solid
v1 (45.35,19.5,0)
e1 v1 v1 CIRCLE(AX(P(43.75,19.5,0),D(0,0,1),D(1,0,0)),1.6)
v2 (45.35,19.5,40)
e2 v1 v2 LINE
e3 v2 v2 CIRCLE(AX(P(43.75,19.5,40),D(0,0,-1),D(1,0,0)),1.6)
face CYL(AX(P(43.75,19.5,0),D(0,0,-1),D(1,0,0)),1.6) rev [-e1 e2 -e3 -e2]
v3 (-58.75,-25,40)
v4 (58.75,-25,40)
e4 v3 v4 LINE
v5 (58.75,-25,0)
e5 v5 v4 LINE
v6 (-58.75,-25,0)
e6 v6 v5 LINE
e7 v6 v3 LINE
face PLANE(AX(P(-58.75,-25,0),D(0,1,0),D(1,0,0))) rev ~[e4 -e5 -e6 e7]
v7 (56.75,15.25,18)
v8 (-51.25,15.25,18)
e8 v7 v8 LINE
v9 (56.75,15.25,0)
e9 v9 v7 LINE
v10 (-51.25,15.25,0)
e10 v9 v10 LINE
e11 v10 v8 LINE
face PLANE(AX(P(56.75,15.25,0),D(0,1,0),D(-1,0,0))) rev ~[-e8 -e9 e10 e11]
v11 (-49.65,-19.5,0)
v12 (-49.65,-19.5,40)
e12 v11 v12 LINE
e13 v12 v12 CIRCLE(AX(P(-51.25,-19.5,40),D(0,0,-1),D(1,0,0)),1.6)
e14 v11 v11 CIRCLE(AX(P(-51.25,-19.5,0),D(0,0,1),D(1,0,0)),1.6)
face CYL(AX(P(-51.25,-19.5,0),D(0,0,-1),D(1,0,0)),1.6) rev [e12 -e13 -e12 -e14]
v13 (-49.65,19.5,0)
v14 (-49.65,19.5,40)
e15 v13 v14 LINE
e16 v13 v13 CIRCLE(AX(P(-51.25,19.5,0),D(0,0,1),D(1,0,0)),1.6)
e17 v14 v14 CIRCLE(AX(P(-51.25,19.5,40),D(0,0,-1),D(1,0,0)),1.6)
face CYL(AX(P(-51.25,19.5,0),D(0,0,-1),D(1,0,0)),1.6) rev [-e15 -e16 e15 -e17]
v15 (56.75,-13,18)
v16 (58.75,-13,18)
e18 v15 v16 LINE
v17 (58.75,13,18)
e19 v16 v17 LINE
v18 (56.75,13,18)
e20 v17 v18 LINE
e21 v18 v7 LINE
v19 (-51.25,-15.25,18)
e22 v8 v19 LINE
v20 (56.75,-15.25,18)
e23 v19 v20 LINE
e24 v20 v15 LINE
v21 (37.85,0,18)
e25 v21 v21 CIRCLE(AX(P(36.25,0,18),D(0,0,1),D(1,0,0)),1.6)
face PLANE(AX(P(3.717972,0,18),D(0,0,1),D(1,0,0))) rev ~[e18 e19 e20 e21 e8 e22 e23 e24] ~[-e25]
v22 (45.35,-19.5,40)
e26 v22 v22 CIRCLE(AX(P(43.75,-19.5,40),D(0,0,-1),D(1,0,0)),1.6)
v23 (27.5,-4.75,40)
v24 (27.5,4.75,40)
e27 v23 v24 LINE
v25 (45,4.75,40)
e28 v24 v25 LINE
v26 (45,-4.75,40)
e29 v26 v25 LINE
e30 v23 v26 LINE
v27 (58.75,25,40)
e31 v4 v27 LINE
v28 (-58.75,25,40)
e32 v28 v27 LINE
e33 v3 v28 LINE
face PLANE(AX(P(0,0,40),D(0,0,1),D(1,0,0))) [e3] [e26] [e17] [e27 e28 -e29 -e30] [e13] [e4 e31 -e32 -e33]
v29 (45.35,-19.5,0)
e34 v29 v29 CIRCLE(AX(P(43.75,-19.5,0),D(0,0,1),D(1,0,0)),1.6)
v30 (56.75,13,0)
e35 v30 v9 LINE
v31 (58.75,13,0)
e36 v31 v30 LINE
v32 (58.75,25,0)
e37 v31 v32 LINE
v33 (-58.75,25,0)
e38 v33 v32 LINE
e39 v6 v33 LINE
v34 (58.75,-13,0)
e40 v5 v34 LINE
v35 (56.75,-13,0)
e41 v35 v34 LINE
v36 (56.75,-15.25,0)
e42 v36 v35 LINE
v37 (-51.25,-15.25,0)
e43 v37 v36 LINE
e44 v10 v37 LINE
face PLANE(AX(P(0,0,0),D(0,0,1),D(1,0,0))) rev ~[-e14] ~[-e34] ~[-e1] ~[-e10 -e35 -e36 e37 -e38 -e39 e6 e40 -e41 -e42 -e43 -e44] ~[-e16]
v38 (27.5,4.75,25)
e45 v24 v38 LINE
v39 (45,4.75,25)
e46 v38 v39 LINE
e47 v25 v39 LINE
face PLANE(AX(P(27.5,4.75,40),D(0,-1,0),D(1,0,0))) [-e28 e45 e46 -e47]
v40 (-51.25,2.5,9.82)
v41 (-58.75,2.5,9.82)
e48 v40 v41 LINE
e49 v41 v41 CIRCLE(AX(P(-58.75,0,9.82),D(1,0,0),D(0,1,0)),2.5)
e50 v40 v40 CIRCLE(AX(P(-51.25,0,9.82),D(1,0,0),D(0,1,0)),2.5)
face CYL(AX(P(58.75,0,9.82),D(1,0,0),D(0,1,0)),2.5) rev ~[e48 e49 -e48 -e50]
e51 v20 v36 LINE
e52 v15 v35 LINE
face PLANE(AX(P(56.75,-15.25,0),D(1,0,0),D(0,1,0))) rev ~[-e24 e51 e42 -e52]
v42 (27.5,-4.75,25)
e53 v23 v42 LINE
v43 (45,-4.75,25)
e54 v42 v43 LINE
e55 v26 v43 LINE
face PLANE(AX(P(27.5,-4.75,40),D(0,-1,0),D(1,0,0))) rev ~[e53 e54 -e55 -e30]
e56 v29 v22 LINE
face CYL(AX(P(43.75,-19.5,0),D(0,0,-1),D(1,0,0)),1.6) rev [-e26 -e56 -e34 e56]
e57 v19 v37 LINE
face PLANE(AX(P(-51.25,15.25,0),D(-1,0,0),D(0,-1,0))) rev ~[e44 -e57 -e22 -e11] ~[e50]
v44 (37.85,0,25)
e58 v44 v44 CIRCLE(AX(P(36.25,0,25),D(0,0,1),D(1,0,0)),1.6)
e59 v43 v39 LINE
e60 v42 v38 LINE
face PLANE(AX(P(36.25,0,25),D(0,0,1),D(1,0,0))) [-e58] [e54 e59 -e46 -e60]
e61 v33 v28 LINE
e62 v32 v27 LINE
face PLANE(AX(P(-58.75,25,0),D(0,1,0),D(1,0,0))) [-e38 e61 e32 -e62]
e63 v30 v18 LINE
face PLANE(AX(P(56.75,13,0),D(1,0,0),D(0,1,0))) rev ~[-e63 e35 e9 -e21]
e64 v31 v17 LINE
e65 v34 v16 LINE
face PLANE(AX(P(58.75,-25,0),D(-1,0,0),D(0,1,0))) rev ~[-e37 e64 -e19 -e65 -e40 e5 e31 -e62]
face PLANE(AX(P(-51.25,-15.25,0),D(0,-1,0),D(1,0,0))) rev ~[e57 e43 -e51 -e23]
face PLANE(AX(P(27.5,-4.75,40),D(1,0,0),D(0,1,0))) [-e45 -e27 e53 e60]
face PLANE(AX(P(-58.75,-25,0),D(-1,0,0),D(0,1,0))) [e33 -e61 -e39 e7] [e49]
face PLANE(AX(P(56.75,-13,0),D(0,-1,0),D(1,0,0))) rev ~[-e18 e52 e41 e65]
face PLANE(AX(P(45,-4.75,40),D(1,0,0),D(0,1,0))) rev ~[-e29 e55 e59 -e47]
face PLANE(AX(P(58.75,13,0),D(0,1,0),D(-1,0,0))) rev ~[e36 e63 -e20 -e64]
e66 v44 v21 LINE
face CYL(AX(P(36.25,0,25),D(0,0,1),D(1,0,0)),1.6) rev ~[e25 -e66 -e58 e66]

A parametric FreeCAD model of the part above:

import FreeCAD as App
import Part
import Sketcher

V = App.Vector
Q = App.Units.Quantity

doc = App.newDocument("Part")
body = doc.addObject("PartDesign::Body", "Body")

# Sketch on XY plane
sketch1 = doc.addObject("Sketcher::SketchObject", "Sketch")
body.addObject(sketch1)
sketch1.AttachmentSupport = (doc.XY_Plane, [""])
sketch1.MapMode = "FlatFace"
sketch1.addGeometry([
    Part.LineSegment(V(-59, 25, 0), V(-59, -25, 0)),
    Part.LineSegment(V(-59, -25, 0), V(59, -25, 0)),
    Part.LineSegment(V(59, -25, 0), V(59, 25, 0)),
    Part.LineSegment(V(59, 25, 0), V(-59, 25, 0)),
], False)
sketch1.addConstraint([
    Sketcher.Constraint("Coincident", 0, 2, 1, 1),
    Sketcher.Constraint("Coincident", 1, 2, 2, 1),
    Sketcher.Constraint("Coincident", 2, 2, 3, 1),
    Sketcher.Constraint("Coincident", 3, 2, 0, 1),
    Sketcher.Constraint("Vertical", 0),
    Sketcher.Constraint("Horizontal", 1),
    Sketcher.Constraint("Vertical", 2),
    Sketcher.Constraint("Horizontal", 3),
    Sketcher.Constraint("Symmetric", 0, 2, 2, 2, -1, 1),
    Sketcher.Constraint("DistanceY", 0, 2, 0, 1, Q("50 mm")),
    Sketcher.Constraint("DistanceX", 1, 1, 1, 2, Q("117.5 mm")),
])
pad1 = doc.addObject("PartDesign::Pad", "Pad")
body.addObject(pad1)
pad1.Profile = sketch1
pad1.Length = 40

# Sketch on XY plane
sketch2 = doc.addObject("Sketcher::SketchObject", "Sketch001")
body.addObject(sketch2)
sketch2.AttachmentSupport = (doc.XY_Plane, [""])
sketch2.MapMode = "FlatFace"
sketch2.addGeometry([
    Part.LineSegment(V(56.8, -13, 0), V(58.8, -13, 0)),  # 0
    Part.LineSegment(V(58.8, -13, 0), V(58.8, 13, 0)),  # 1
    Part.LineSegment(V(58.8, 13, 0), V(56.8, 13, 0)),  # 2
    Part.LineSegment(V(56.8, 13, 0), V(56.8, 15.2, 0)),  # 3
    Part.LineSegment(V(56.8, 15.2, 0), V(-51.2, 15.2, 0)),  # 4
    Part.LineSegment(V(-51.2, 15.2, 0), V(-51.2, -15.2, 0)),  # 5
    Part.LineSegment(V(-51.2, -15.2, 0), V(56.8, -15.2, 0)),  # 6
    Part.LineSegment(V(56.8, -15.2, 0), V(56.8, -13, 0)),  # 7
], False)
sketch2.addConstraint([
    Sketcher.Constraint("Coincident", 0, 2, 1, 1),
    Sketcher.Constraint("Coincident", 1, 2, 2, 1),
    Sketcher.Constraint("Coincident", 2, 2, 3, 1),
    Sketcher.Constraint("Coincident", 3, 2, 4, 1),
    Sketcher.Constraint("Coincident", 4, 2, 5, 1),
    Sketcher.Constraint("Coincident", 5, 2, 6, 1),
    Sketcher.Constraint("Coincident", 6, 2, 7, 1),
    Sketcher.Constraint("Coincident", 7, 2, 0, 1),
    Sketcher.Constraint("Horizontal", 0),
    Sketcher.Constraint("Vertical", 1),
    Sketcher.Constraint("Horizontal", 2),
    Sketcher.Constraint("Vertical", 3),
    Sketcher.Constraint("Horizontal", 4),
    Sketcher.Constraint("Vertical", 5),
    Sketcher.Constraint("Horizontal", 6),
    Sketcher.Constraint("Vertical", 7),
    Sketcher.Constraint("Symmetric", 3, 2, 6, 2, -1),
    Sketcher.Constraint("Equal", 3, 7),
    Sketcher.Constraint("DistanceX", 0, 1, 0, 2, Q("2 mm")),
    Sketcher.Constraint("DistanceX", 4, 2, 4, 1, Q("108 mm")),
    Sketcher.Constraint("DistanceY", 1, 1, 1, 2, Q("26 mm")),
    Sketcher.Constraint("DistanceY", 5, 2, 5, 1, Q("30.5 mm")),
    Sketcher.Constraint("DistanceX", -1, 1, 0, 2, Q("58.75 mm")),
])
pocket1 = doc.addObject("PartDesign::Pocket", "Pocket")
body.addObject(pocket1)
pocket1.Profile = sketch2
pocket1.Length = 36
pocket1.Midplane = True

# Sketch on XY plane
sketch3 = doc.addObject("Sketcher::SketchObject", "Sketch002")
body.addObject(sketch3)
sketch3.AttachmentSupport = (doc.XY_Plane, [""])
sketch3.MapMode = "FlatFace"
sketch3.addGeometry([
    Part.Circle(V(-51.2, 19.5, 0), V(0, 0, 1), 1.6),
    Part.Circle(V(43.8, 19.5, 0), V(0, 0, 1), 1.6),
    Part.Circle(V(-51.2, -19.5, 0), V(0, 0, 1), 1.6),
    Part.Circle(V(43.8, -19.5, 0), V(0, 0, 1), 1.6),
], False)
sketch3.addConstraint([
    Sketcher.Constraint("Equal", 0, 1),
    Sketcher.Constraint("Equal", 1, 2),
    Sketcher.Constraint("Equal", 2, 3),
    Sketcher.Constraint("Symmetric", 0, 3, 2, 3, -1),
    Sketcher.Constraint("Symmetric", 1, 3, 3, 3, -1),
    Sketcher.Constraint("Horizontal", 0, 3, 1, 3),
    Sketcher.Constraint("Diameter", 0, Q("3.2 mm")),
    Sketcher.Constraint("DistanceX", 0, 3, 1, 3, Q("95 mm")),
    Sketcher.Constraint("DistanceY", 2, 3, 0, 3, Q("39 mm")),
    Sketcher.Constraint("DistanceX", 0, 3, -1, 1, Q("51.25 mm")),
])
pocket2 = doc.addObject("PartDesign::Pocket", "Pocket001")
body.addObject(pocket2)
pocket2.Profile = sketch3
pocket2.Type = "ThroughAll"
pocket2.Reversed = True

# Sketch on XY plane
sketch4 = doc.addObject("Sketcher::SketchObject", "Sketch003")
body.addObject(sketch4)
sketch4.AttachmentSupport = (doc.XY_Plane, [""])
sketch4.MapMode = "FlatFace"
sketch4.AttachmentOffset = App.Placement(V(0, 0, 40), App.Rotation())
sketch4.addGeometry([
    Part.LineSegment(V(28, 5, 0), V(28, -5, 0)),
    Part.LineSegment(V(28, -5, 0), V(45, -5, 0)),
    Part.LineSegment(V(45, -5, 0), V(45, 5, 0)),
    Part.LineSegment(V(45, 5, 0), V(28, 5, 0)),
], False)
sketch4.addConstraint([
    Sketcher.Constraint("Coincident", 0, 2, 1, 1),
    Sketcher.Constraint("Coincident", 1, 2, 2, 1),
    Sketcher.Constraint("Coincident", 2, 2, 3, 1),
    Sketcher.Constraint("Coincident", 3, 2, 0, 1),
    Sketcher.Constraint("Vertical", 0),
    Sketcher.Constraint("Horizontal", 1),
    Sketcher.Constraint("Vertical", 2),
    Sketcher.Constraint("Horizontal", 3),
    Sketcher.Constraint("DistanceX", 1, 1, 1, 2, Q("17.5 mm")),
    Sketcher.Constraint("DistanceY", 0, 2, 0, 1, Q("9.5 mm")),
    Sketcher.Constraint("DistanceX", -1, 1, 1, 2, Q("45 mm")),
    Sketcher.Constraint("DistanceY", 0, 2, -1, 1, Q("4.75 mm")),
])
pocket3 = doc.addObject("PartDesign::Pocket", "Pocket002")
body.addObject(pocket3)
pocket3.Profile = sketch4
pocket3.Length = 15

# Sketch on XY plane
sketch5 = doc.addObject("Sketcher::SketchObject", "Sketch004")
body.addObject(sketch5)
sketch5.AttachmentSupport = (doc.XY_Plane, [""])
sketch5.MapMode = "FlatFace"
sketch5.AttachmentOffset = App.Placement(V(0, 0, 25), App.Rotation())
sketch5.addGeometry(Part.Circle(V(36.2, 0, 0), V(0, 0, 1), 1.6), False)
sketch5.addConstraint([
    Sketcher.Constraint("PointOnObject", 0, 3, -1),
    Sketcher.Constraint("Diameter", 0, Q("3.2 mm")),
    Sketcher.Constraint("DistanceX", -1, 1, 0, 3, Q("36.25 mm")),
])
pocket4 = doc.addObject("PartDesign::Pocket", "Pocket003")
body.addObject(pocket4)
pocket4.Profile = sketch5
pocket4.Type = "ThroughAll"

# Sketch on YZ plane
sketch6 = doc.addObject("Sketcher::SketchObject", "Sketch005")
body.addObject(sketch6)
sketch6.AttachmentSupport = (doc.YZ_Plane, [""])
sketch6.MapMode = "FlatFace"
sketch6.AttachmentOffset = App.Placement(V(0, 0, 58.75), App.Rotation())
sketch6.addGeometry(Part.Circle(V(0, 9.8, 0), V(0, 0, 1), 2.5), False)
sketch6.addConstraint([
    Sketcher.Constraint("PointOnObject", 0, 3, -2),
    Sketcher.Constraint("Diameter", 0, Q("5 mm")),
    Sketcher.Constraint("DistanceY", -1, 1, 0, 3, Q("9.82 mm")),
])
pocket5 = doc.addObject("PartDesign::Pocket", "Pocket004")
body.addObject(pocket5)
pocket5.Profile = sketch6
pocket5.Type = "ThroughAll"

doc.recompute()
